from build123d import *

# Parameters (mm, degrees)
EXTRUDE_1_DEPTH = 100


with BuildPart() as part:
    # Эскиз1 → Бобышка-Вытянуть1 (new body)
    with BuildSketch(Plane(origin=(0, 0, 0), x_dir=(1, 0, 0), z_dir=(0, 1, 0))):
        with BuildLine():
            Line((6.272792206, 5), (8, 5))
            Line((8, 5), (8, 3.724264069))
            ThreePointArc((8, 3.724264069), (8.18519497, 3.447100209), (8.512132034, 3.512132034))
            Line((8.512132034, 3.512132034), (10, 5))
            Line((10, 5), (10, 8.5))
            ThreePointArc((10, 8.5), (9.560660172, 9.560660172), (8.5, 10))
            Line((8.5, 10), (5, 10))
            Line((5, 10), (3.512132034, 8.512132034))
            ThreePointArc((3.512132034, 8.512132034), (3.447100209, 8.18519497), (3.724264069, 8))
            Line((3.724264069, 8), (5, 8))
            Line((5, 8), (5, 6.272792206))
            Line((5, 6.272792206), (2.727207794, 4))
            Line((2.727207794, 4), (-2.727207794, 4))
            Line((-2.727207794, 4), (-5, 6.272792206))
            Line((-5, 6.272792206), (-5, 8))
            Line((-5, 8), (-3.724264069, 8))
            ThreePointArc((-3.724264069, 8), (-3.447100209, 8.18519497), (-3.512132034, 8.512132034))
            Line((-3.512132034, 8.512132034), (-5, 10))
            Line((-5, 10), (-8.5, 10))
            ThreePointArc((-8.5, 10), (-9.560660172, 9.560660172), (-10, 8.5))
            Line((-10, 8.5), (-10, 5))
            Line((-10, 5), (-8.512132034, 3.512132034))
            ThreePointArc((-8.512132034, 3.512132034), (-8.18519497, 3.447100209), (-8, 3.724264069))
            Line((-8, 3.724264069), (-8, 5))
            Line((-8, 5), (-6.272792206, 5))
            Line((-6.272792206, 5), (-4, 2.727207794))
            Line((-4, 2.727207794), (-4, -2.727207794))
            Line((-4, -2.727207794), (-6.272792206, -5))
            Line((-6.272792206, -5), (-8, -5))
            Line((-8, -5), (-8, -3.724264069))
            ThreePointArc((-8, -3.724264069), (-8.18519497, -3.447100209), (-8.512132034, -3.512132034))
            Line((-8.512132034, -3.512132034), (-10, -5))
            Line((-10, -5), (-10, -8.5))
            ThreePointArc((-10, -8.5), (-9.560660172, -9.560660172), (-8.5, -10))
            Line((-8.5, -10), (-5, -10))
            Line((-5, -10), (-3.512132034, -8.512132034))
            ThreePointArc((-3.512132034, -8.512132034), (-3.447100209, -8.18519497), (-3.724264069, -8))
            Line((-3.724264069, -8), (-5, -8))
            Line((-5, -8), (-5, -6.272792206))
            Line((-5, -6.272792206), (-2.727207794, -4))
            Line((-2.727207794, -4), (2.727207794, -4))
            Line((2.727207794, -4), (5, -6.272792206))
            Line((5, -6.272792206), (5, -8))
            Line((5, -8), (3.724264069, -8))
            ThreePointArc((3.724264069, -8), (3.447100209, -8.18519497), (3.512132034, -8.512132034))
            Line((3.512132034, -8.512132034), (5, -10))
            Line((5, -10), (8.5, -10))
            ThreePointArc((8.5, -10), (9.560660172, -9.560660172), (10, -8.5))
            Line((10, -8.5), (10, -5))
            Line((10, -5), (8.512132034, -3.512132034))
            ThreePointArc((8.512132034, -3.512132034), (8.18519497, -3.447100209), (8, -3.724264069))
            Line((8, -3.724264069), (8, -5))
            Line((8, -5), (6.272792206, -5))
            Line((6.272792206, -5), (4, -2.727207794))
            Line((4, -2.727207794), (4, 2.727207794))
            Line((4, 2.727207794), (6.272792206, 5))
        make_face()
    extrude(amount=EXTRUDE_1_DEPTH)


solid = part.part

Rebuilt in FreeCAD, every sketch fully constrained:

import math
import FreeCAD as App
import Part
import Sketcher

doc = App.newDocument("Part")
params = doc.addObject("Spreadsheet::Sheet", "Params")
for row, (alias, value) in enumerate([
    ("sketch1_radius", "0.3 mm"),
    ("sketch1_radius2", "1.5 mm"),
    ("sketch1_width", "3.5 mm"),
    ("pad1_length", "100 mm"),
], start=1):
    params.set(f"A{row}", alias)
    params.set(f"B{row}", "=" + value)
    params.setAlias(f"B{row}", alias)

body = doc.addObject("PartDesign::Body", "Body")

# Sketch on XZ plane
sketch1 = doc.addObject("Sketcher::SketchObject", "Sketch")
body.addObject(sketch1)
sketch1.AttachmentSupport = (doc.XZ_Plane, [""])
sketch1.MapMode = "FlatFace"
sketch1.addGeometry([
    Part.LineSegment(App.Vector(6.272792, -5, 0), App.Vector(8, -5, 0)),  # 0
    Part.LineSegment(App.Vector(8, -5, 0), App.Vector(8, -3.724264, 0)),  # 1
    Part.ArcOfCircle(Part.Circle(App.Vector(8.3, -3.724264, 0), App.Vector(0, 0, 1), 0.3), math.radians(45), math.radians(180)),  # 2
    Part.LineSegment(App.Vector(8.512132, -3.512132, 0), App.Vector(10, -5, 0)),  # 3
    Part.LineSegment(App.Vector(10, -5, 0), App.Vector(10, -8.5, 0)),  # 4
    Part.ArcOfCircle(Part.Circle(App.Vector(8.5, -8.5, 0), App.Vector(0, 0, 1), 1.5), math.radians(-90), math.radians(0)),  # 5
    Part.LineSegment(App.Vector(8.5, -10, 0), App.Vector(5, -10, 0)),  # 6
    Part.LineSegment(App.Vector(5, -10, 0), App.Vector(3.512132, -8.512132, 0)),  # 7
    Part.ArcOfCircle(Part.Circle(App.Vector(3.724264, -8.3, 0), App.Vector(0, 0, 1), 0.3), math.radians(90), math.radians(225)),  # 8
    Part.LineSegment(App.Vector(3.724264, -8, 0), App.Vector(5, -8, 0)),  # 9
    Part.LineSegment(App.Vector(5, -8, 0), App.Vector(5, -6.272792, 0)),  # 10
    Part.LineSegment(App.Vector(5, -6.272792, 0), App.Vector(2.727208, -4, 0)),  # 11
    Part.LineSegment(App.Vector(2.727208, -4, 0), App.Vector(-2.727208, -4, 0)),  # 12
    Part.LineSegment(App.Vector(-2.727208, -4, 0), App.Vector(-5, -6.272792, 0)),  # 13
    Part.LineSegment(App.Vector(-5, -6.272792, 0), App.Vector(-5, -8, 0)),  # 14
    Part.LineSegment(App.Vector(-5, -8, 0), App.Vector(-3.724264, -8, 0)),  # 15
    Part.ArcOfCircle(Part.Circle(App.Vector(-3.724264, -8.3, 0), App.Vector(0, 0, 1), 0.3), math.radians(-45), math.radians(90)),  # 16
    Part.LineSegment(App.Vector(-3.512132, -8.512132, 0), App.Vector(-5, -10, 0)),  # 17
    Part.LineSegment(App.Vector(-5, -10, 0), App.Vector(-8.5, -10, 0)),  # 18
    Part.ArcOfCircle(Part.Circle(App.Vector(-8.5, -8.5, 0), App.Vector(0, 0, 1), 1.5), math.radians(180), math.radians(270)),  # 19
    Part.LineSegment(App.Vector(-10, -8.5, 0), App.Vector(-10, -5, 0)),  # 20
    Part.LineSegment(App.Vector(-10, -5, 0), App.Vector(-8.512132, -3.512132, 0)),  # 21
    Part.ArcOfCircle(Part.Circle(App.Vector(-8.3, -3.724264, 0), App.Vector(0, 0, 1), 0.3), math.radians(0), math.radians(135)),  # 22
    Part.LineSegment(App.Vector(-8, -3.724264, 0), App.Vector(-8, -5, 0)),  # 23
    Part.LineSegment(App.Vector(-8, -5, 0), App.Vector(-6.272792, -5, 0)),  # 24
    Part.LineSegment(App.Vector(-6.272792, -5, 0), App.Vector(-4, -2.727208, 0)),  # 25
    Part.LineSegment(App.Vector(-4, -2.727208, 0), App.Vector(-4, 2.727208, 0)),  # 26
    Part.LineSegment(App.Vector(-4, 2.727208, 0), App.Vector(-6.272792, 5, 0)),  # 27
    Part.LineSegment(App.Vector(-6.272792, 5, 0), App.Vector(-8, 5, 0)),  # 28
    Part.LineSegment(App.Vector(-8, 5, 0), App.Vector(-8, 3.724264, 0)),  # 29
    Part.ArcOfCircle(Part.Circle(App.Vector(-8.3, 3.724264, 0), App.Vector(0, 0, 1), 0.3), math.radians(-135), math.radians(0)),  # 30
    Part.LineSegment(App.Vector(-8.512132, 3.512132, 0), App.Vector(-10, 5, 0)),  # 31
    Part.LineSegment(App.Vector(-10, 5, 0), App.Vector(-10, 8.5, 0)),  # 32
    Part.ArcOfCircle(Part.Circle(App.Vector(-8.5, 8.5, 0), App.Vector(0, 0, 1), 1.5), math.radians(90), math.radians(180)),  # 33
    Part.LineSegment(App.Vector(-8.5, 10, 0), App.Vector(-5, 10, 0)),  # 34
    Part.LineSegment(App.Vector(-5, 10, 0), App.Vector(-3.512132, 8.512132, 0)),  # 35
    Part.ArcOfCircle(Part.Circle(App.Vector(-3.724264, 8.3, 0), App.Vector(0, 0, 1), 0.3), math.radians(-90), math.radians(45)),  # 36
    Part.LineSegment(App.Vector(-3.724264, 8, 0), App.Vector(-5, 8, 0)),  # 37
    Part.LineSegment(App.Vector(-5, 8, 0), App.Vector(-5, 6.272792, 0)),  # 38
    Part.LineSegment(App.Vector(-5, 6.272792, 0), App.Vector(-2.727208, 4, 0)),  # 39
    Part.LineSegment(App.Vector(-2.727208, 4, 0), App.Vector(2.727208, 4, 0)),  # 40
    Part.LineSegment(App.Vector(2.727208, 4, 0), App.Vector(5, 6.272792, 0)),  # 41
    Part.LineSegment(App.Vector(5, 6.272792, 0), App.Vector(5, 8, 0)),  # 42
    Part.LineSegment(App.Vector(5, 8, 0), App.Vector(3.724264, 8, 0)),  # 43
    Part.ArcOfCircle(Part.Circle(App.Vector(3.724264, 8.3, 0), App.Vector(0, 0, 1), 0.3), math.radians(135), math.radians(270)),  # 44
    Part.LineSegment(App.Vector(3.512132, 8.512132, 0), App.Vector(5, 10, 0)),  # 45
    Part.LineSegment(App.Vector(5, 10, 0), App.Vector(8.5, 10, 0)),  # 46
    Part.ArcOfCircle(Part.Circle(App.Vector(8.5, 8.5, 0), App.Vector(0, 0, 1), 1.5), math.radians(0), math.radians(90)),  # 47
    Part.LineSegment(App.Vector(10, 8.5, 0), App.Vector(10, 5, 0)),  # 48
    Part.LineSegment(App.Vector(10, 5, 0), App.Vector(8.512132, 3.512132, 0)),  # 49
    Part.ArcOfCircle(Part.Circle(App.Vector(8.3, 3.724264, 0), App.Vector(0, 0, 1), 0.3), math.radians(180), math.radians(315)),  # 50
    Part.LineSegment(App.Vector(8, 3.724264, 0), App.Vector(8, 5, 0)),  # 51
    Part.LineSegment(App.Vector(8, 5, 0), App.Vector(6.272792, 5, 0)),  # 52
    Part.LineSegment(App.Vector(6.272792, 5, 0), App.Vector(4, 2.727208, 0)),  # 53
    Part.LineSegment(App.Vector(4, 2.727208, 0), App.Vector(4, -2.727208, 0)),  # 54
    Part.LineSegment(App.Vector(4, -2.727208, 0), App.Vector(6.272792, -5, 0)),  # 55
], False)
sketch1.addConstraint([
    Sketcher.Constraint("Coincident", 0, 2, 1, 1),
    Sketcher.Constraint("Tangent", 1, 2, 2, 2),
    Sketcher.Constraint("Tangent", 2, 1, 3, 1),
    Sketcher.Constraint("Coincident", 3, 2, 4, 1),
    Sketcher.Constraint("Tangent", 4, 2, 5, 2),
    Sketcher.Constraint("Tangent", 5, 1, 6, 1),
    Sketcher.Constraint("Coincident", 6, 2, 7, 1),
    Sketcher.Constraint("Tangent", 7, 2, 8, 2),
    Sketcher.Constraint("Tangent", 8, 1, 9, 1),
    Sketcher.Constraint("Coincident", 9, 2, 10, 1),
    Sketcher.Constraint("Coincident", 10, 2, 11, 1),
    Sketcher.Constraint("Coincident", 11, 2, 12, 1),
    Sketcher.Constraint("Coincident", 12, 2, 13, 1),
    Sketcher.Constraint("Coincident", 13, 2, 14, 1),
    Sketcher.Constraint("Coincident", 14, 2, 15, 1),
    Sketcher.Constraint("Tangent", 15, 2, 16, 2),
    Sketcher.Constraint("Tangent", 16, 1, 17, 1),
    Sketcher.Constraint("Coincident", 17, 2, 18, 1),
    Sketcher.Constraint("Tangent", 18, 2, 19, 2),
    Sketcher.Constraint("Tangent", 19, 1, 20, 1),
    Sketcher.Constraint("Coincident", 20, 2, 21, 1),
    Sketcher.Constraint("Tangent", 21, 2, 22, 2),
    Sketcher.Constraint("Tangent", 22, 1, 23, 1),
    Sketcher.Constraint("Coincident", 23, 2, 24, 1),
    Sketcher.Constraint("Coincident", 24, 2, 25, 1),
    Sketcher.Constraint("Coincident", 25, 2, 26, 1),
    Sketcher.Constraint("Coincident", 26, 2, 27, 1),
    Sketcher.Constraint("Coincident", 27, 2, 28, 1),
    Sketcher.Constraint("Coincident", 28, 2, 29, 1),
    Sketcher.Constraint("Tangent", 29, 2, 30, 2),
    Sketcher.Constraint("Tangent", 30, 1, 31, 1),
    Sketcher.Constraint("Coincident", 31, 2, 32, 1),
    Sketcher.Constraint("Tangent", 32, 2, 33, 2),
    Sketcher.Constraint("Tangent", 33, 1, 34, 1),
    Sketcher.Constraint("Coincident", 34, 2, 35, 1),
    Sketcher.Constraint("Tangent", 35, 2, 36, 2),
    Sketcher.Constraint("Tangent", 36, 1, 37, 1),
    Sketcher.Constraint("Coincident", 37, 2, 38, 1),
    Sketcher.Constraint("Coincident", 38, 2, 39, 1),
    Sketcher.Constraint("Coincident", 39, 2, 40, 1),
    Sketcher.Constraint("Coincident", 40, 2, 41, 1),
    Sketcher.Constraint("Coincident", 41, 2, 42, 1),
    Sketcher.Constraint("Coincident", 42, 2, 43, 1),
    Sketcher.Constraint("Tangent", 43, 2, 44, 2),
    Sketcher.Constraint("Tangent", 44, 1, 45, 1),
    Sketcher.Constraint("Coincident", 45, 2, 46, 1),
    Sketcher.Constraint("Tangent", 46, 2, 47, 2),
    Sketcher.Constraint("Tangent", 47, 1, 48, 1),
    Sketcher.Constraint("Coincident", 48, 2, 49, 1),
    Sketcher.Constraint("Tangent", 49, 2, 50, 2),
    Sketcher.Constraint("Tangent", 50, 1, 51, 1),
    Sketcher.Constraint("Coincident", 51, 2, 52, 1),
    Sketcher.Constraint("Coincident", 52, 2, 53, 1),
    Sketcher.Constraint("Coincident", 53, 2, 54, 1),
    Sketcher.Constraint("Coincident", 54, 2, 55, 1),
    Sketcher.Constraint("Coincident", 55, 2, 0, 1),
    Sketcher.Constraint("Horizontal", 0),
    Sketcher.Constraint("Vertical", 1),
    Sketcher.Constraint("Vertical", 4),
    Sketcher.Constraint("Horizontal", 6),
    Sketcher.Constraint("Horizontal", 9),
    Sketcher.Constraint("Vertical", 10),
    Sketcher.Constraint("Horizontal", 12),
    Sketcher.Constraint("Vertical", 14),
    Sketcher.Constraint("Horizontal", 15),
    Sketcher.Constraint("Horizontal", 18),
    Sketcher.Constraint("Vertical", 20),
    Sketcher.Constraint("Vertical", 23),
    Sketcher.Constraint("Horizontal", 24),
    Sketcher.Constraint("Vertical", 26),
    Sketcher.Constraint("Horizontal", 28),
    Sketcher.Constraint("Vertical", 29),
    Sketcher.Constraint("Vertical", 32),
    Sketcher.Constraint("Horizontal", 34),
    Sketcher.Constraint("Horizontal", 37),
    Sketcher.Constraint("Vertical", 38),
    Sketcher.Constraint("Horizontal", 40),
    Sketcher.Constraint("Vertical", 42),
    Sketcher.Constraint("Horizontal", 43),
    Sketcher.Constraint("Horizontal", 46),
    Sketcher.Constraint("Vertical", 48),
    Sketcher.Constraint("Vertical", 51),
    Sketcher.Constraint("Horizontal", 52),
    Sketcher.Constraint("Vertical", 54),
    Sketcher.Constraint("Equal", 2, 8),
    Sketcher.Constraint("Equal", 8, 16),
    Sketcher.Constraint("Equal", 5, 19),
    Sketcher.Constraint("Equal", 16, 22),
    Sketcher.Constraint("Equal", 22, 30),
    Sketcher.Constraint("Equal", 19, 33),
    Sketcher.Constraint("Equal", 30, 36),
    Sketcher.Constraint("Equal", 36, 44),
    Sketcher.Constraint("Equal", 33, 47),
    Sketcher.Constraint("Equal", 44, 50),
    Sketcher.Constraint("Symmetric", 2, 3, 30, 3, -1, 1),
    Sketcher.Constraint("Symmetric", 5, 3, 33, 3, -1, 1),
    Sketcher.Constraint("Symmetric", 8, 3, 36, 3, -1, 1),
    Sketcher.Constraint("Symmetric", 16, 3, 44, 3, -1, 1),
    Sketcher.Constraint("Symmetric", 19, 3, 47, 3, -1, 1),
    Sketcher.Constraint("Symmetric", 22, 3, 50, 3, -1, 1),
    Sketcher.Constraint("Symmetric", 10, 2, 38, 2, -1, 1),
    Sketcher.Constraint("Symmetric", 11, 2, 39, 2, -1, 1),
    Sketcher.Constraint("Symmetric", 13, 2, 41, 2, -1, 1),
    Sketcher.Constraint("Symmetric", 24, 2, 52, 2, -1, 1),
    Sketcher.Constraint("Symmetric", 25, 2, 53, 2, -1, 1),
    Sketcher.Constraint("Symmetric", 27, 2, 55, 2, -1, 1),
    Sketcher.Constraint("Symmetric", 8, 3, 16, 3, -2),
    Sketcher.Constraint("Symmetric", 5, 3, 19, 3, -2),
    Sketcher.Constraint("Symmetric", 2, 3, 22, 3, -2),
    Sketcher.Constraint("Symmetric", 10, 2, 13, 2, -2),
    Sketcher.Constraint("Symmetric", 27, 2, 52, 2, -2),
    Sketcher.Constraint("Parallel", 3, 7),
    Sketcher.Constraint("Parallel", 7, 11),
    Sketcher.Constraint("Perpendicular", 11, 13),
    Sketcher.Constraint("Parallel", 13, 17),
    Sketcher.Constraint("Parallel", 17, 21),
    Sketcher.Constraint("Parallel", 21, 25),
    Sketcher.Constraint("Perpendicular", 25, 27),
    Sketcher.Constraint("Parallel", 27, 31),
    Sketcher.Constraint("Parallel", 31, 35),
    Sketcher.Constraint("Perpendicular", 39, 41),
    Sketcher.Constraint("Parallel", 41, 45),
    Sketcher.Constraint("Parallel", 45, 49),
    Sketcher.Constraint("Perpendicular", 53, 55),
    Sketcher.Constraint("Horizontal", 0, 2, 3, 2),
    Sketcher.Constraint("Horizontal", 7, 2, 16, 1),
    Sketcher.Constraint("Vertical", 6, 2, 9, 2),
    Sketcher.Constraint("Equal", 43, 1),
    Sketcher.Constraint("Equal", 46, 4),
    Sketcher.Constraint("Equal", 52, 10),
    Sketcher.Constraint("Equal", 40, 26),
    Sketcher.Constraint("Equal", 13, 25),
    Sketcher.Constraint("Radius", 2, 0.3),
    Sketcher.Constraint("Radius", 5, 1.5),
    Sketcher.Constraint("DistanceX", 6, 2, 6, 1, 3.5),
    Sketcher.Constraint("DistanceX", -1, 1, 0, 2, 8.0),
    Sketcher.Constraint("DistanceY", 0, 2, -1, 1, 5.0),
    Sketcher.Constraint("DistanceY", 11, 2, -1, 1, 4.0),
    Sketcher.Constraint("DistanceX", 0, 1, 0, 2, 1.727208),
])
sketch1.setExpression("Constraints[132]", "Params.sketch1_radius")
sketch1.setExpression("Constraints[133]", "Params.sketch1_radius2")
sketch1.setExpression("Constraints[134]", "Params.sketch1_width")
pad1 = doc.addObject("PartDesign::Pad", "Pad")
body.addObject(pad1)
pad1.Profile = sketch1
pad1.setExpression("Length", "Params.pad1_length")
pad1.Reversed = True

doc.recompute()
